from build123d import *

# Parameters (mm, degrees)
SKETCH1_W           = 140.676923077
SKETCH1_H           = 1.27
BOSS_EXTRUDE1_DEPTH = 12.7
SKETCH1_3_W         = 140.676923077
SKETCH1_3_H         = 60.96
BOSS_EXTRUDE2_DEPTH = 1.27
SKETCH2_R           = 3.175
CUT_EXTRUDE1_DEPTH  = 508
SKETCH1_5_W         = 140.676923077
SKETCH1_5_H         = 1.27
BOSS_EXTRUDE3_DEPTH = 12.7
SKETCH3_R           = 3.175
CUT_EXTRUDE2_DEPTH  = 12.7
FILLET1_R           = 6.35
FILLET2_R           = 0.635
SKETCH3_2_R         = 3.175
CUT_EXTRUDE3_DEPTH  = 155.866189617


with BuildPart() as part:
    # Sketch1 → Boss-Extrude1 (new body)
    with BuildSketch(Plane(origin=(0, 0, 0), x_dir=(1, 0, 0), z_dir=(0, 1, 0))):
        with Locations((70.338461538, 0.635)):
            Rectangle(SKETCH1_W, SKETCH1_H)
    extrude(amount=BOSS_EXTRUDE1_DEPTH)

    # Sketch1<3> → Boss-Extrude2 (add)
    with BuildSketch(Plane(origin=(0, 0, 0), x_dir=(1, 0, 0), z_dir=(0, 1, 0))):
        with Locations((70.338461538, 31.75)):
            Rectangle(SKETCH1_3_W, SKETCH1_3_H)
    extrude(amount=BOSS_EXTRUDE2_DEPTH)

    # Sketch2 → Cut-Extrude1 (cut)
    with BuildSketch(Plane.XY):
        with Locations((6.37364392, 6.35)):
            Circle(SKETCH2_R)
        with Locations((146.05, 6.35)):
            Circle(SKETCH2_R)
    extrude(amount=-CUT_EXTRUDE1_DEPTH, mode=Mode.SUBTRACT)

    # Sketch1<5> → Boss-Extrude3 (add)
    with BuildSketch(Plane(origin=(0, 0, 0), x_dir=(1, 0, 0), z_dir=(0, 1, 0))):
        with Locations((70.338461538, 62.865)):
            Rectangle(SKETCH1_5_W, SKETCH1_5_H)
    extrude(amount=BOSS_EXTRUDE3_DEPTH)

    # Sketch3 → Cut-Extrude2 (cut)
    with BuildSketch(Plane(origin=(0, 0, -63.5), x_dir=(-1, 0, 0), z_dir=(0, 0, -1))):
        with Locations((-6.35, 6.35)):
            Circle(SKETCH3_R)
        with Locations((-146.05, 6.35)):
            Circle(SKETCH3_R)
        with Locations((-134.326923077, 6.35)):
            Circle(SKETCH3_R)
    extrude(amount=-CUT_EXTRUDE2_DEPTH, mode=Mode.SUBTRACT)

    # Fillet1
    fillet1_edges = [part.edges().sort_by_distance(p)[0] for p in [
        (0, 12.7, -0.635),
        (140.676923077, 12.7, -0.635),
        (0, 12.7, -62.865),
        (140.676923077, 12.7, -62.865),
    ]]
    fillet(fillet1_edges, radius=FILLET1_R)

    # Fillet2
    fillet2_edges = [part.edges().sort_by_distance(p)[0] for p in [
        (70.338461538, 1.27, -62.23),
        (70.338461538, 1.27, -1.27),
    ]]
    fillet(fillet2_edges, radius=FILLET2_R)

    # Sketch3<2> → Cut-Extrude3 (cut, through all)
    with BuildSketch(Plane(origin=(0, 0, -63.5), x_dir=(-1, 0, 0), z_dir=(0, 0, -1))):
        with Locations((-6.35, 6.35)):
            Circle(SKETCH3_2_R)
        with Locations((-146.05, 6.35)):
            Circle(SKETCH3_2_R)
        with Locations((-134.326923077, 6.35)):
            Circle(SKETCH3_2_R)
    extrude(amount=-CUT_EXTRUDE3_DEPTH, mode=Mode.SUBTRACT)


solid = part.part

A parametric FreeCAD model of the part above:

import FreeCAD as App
import Part
import Sketcher

V = App.Vector
Q = App.Units.Quantity


def edges_at(feature, points):
    """Names of the edges that pass closest to the given points."""
    edges = feature.Shape.Edges
    near = lambda p: min(range(len(edges)), key=lambda i: edges[i].distToShape(Part.Vertex(*p))[0])
    return sorted({f"Edge{near(p) + 1}" for p in points})


def add_polygon(sketch, points):
    """Adds a closed chain of lines whose ends are joined by coincident constraints."""
    first, n = sketch.GeometryCount, len(points)
    for a, b in zip(points, points[1:] + points[:1]):
        sketch.addGeometry(Part.LineSegment(App.Vector(*a, 0), App.Vector(*b, 0)), False)
    for i in range(n):
        sketch.addConstraint(Sketcher.Constraint("Coincident", first + i, 2, first + (i + 1) % n, 1))

doc = App.newDocument("Part")
body = doc.addObject("PartDesign::Body", "Body")

# Sketch on XZ plane
sketch1 = doc.addObject("Sketcher::SketchObject", "Sketch")
body.addObject(sketch1)
sketch1.AttachmentSupport = (doc.XZ_Plane, [""])
sketch1.MapMode = "FlatFace"
add_polygon(sketch1, [(0, -1.27), (0, 0), (140.676923, 0), (140.676923, -1.27)])  # lines 0-3
sketch1.addConstraint(Sketcher.Constraint("Vertical", 0))
sketch1.addConstraint(Sketcher.Constraint("Horizontal", 1))
sketch1.addConstraint(Sketcher.Constraint("Vertical", 2))
sketch1.addConstraint(Sketcher.Constraint("Horizontal", 3))
sketch1.addConstraint(Sketcher.Constraint("Coincident", 0, 2, -1, 1))
sketch1.addConstraint(Sketcher.Constraint("DistanceY", 0, 1, 0, 2, Q("0.05 in")))
sketch1.addConstraint(Sketcher.Constraint("DistanceX", 1, 1, 1, 2, 140.676923))
pad1 = doc.addObject("PartDesign::Pad", "Pad")
body.addObject(pad1)
pad1.Profile = sketch1
pad1.Length = Q("0.5 in")
pad1.Reversed = True

# Sketch on XZ plane
sketch2 = doc.addObject("Sketcher::SketchObject", "Sketch001")
body.addObject(sketch2)
sketch2.AttachmentSupport = (doc.XZ_Plane, [""])
sketch2.MapMode = "FlatFace"
add_polygon(sketch2, [(0, -62.23), (0, -1.27), (140.676923, -1.27), (140.676923, -62.23)])  # lines 0-3
sketch2.addConstraint(Sketcher.Constraint("Vertical", 0))
sketch2.addConstraint(Sketcher.Constraint("Horizontal", 1))
sketch2.addConstraint(Sketcher.Constraint("Vertical", 2))
sketch2.addConstraint(Sketcher.Constraint("Horizontal", 3))
sketch2.addConstraint(Sketcher.Constraint("PointOnObject", 0, 2, -2))
sketch2.addConstraint(Sketcher.Constraint("DistanceY", 0, 1, 0, 2, Q("2.4 in")))
sketch2.addConstraint(Sketcher.Constraint("DistanceY", 0, 2, -1, 1, Q("0.05 in")))
sketch2.addConstraint(Sketcher.Constraint("DistanceX", 1, 1, 1, 2, 140.676923))
pad2 = doc.addObject("PartDesign::Pad", "Pad001")
body.addObject(pad2)
pad2.Profile = sketch2
pad2.Length = Q("0.05 in")
pad2.Reversed = True

# Sketch on XY plane
sketch3 = doc.addObject("Sketcher::SketchObject", "Sketch002")
body.addObject(sketch3)
sketch3.AttachmentSupport = (doc.XY_Plane, [""])
sketch3.MapMode = "FlatFace"
sketch3.addGeometry(Part.Circle(V(6.373644, 6.35, 0), V(0, 0, 1), 3.175), False)
sketch3.addGeometry(Part.Circle(V(146.05, 6.35, 0), V(0, 0, 1), 3.175), False)
sketch3.addConstraint(Sketcher.Constraint("Equal", 0, 1))
sketch3.addConstraint(Sketcher.Constraint("Horizontal", 0, 3, 1, 3))
sketch3.addConstraint(Sketcher.Constraint("Diameter", 0, Q("0.25 in")))
sketch3.addConstraint(Sketcher.Constraint("DistanceY", -1, 1, 0, 3, Q("0.25 in")))
sketch3.addConstraint(Sketcher.Constraint("DistanceX", -1, 1, 1, 3, Q("5.75 in")))
sketch3.addConstraint(Sketcher.Constraint("DistanceX", -1, 1, 0, 3, 6.373644))
pocket1 = doc.addObject("PartDesign::Pocket", "Pocket")
body.addObject(pocket1)
pocket1.Profile = sketch3
pocket1.Length = Q("20 in")

# Sketch on XZ plane
sketch4 = doc.addObject("Sketcher::SketchObject", "Sketch003")
body.addObject(sketch4)
sketch4.AttachmentSupport = (doc.XZ_Plane, [""])
sketch4.MapMode = "FlatFace"
add_polygon(sketch4, [(0, -63.5), (0, -62.23), (140.676923, -62.23), (140.676923, -63.5)])  # lines 0-3
sketch4.addConstraint(Sketcher.Constraint("Vertical", 0))
sketch4.addConstraint(Sketcher.Constraint("Horizontal", 1))
sketch4.addConstraint(Sketcher.Constraint("Vertical", 2))
sketch4.addConstraint(Sketcher.Constraint("Horizontal", 3))
sketch4.addConstraint(Sketcher.Constraint("PointOnObject", 0, 2, -2))
sketch4.addConstraint(Sketcher.Constraint("DistanceY", 0, 1, 0, 2, Q("0.05 in")))
sketch4.addConstraint(Sketcher.Constraint("DistanceY", 2, 2, -1, 1, Q("2.5 in")))
sketch4.addConstraint(Sketcher.Constraint("DistanceX", 1, 1, 1, 2, 140.676923))
pad3 = doc.addObject("PartDesign::Pad", "Pad002")
body.addObject(pad3)
pad3.Profile = sketch4
pad3.Length = Q("0.5 in")
pad3.Reversed = True

# Sketch on XY plane
sketch5 = doc.addObject("Sketcher::SketchObject", "Sketch004")
body.addObject(sketch5)
sketch5.AttachmentSupport = (doc.XY_Plane, [""])
sketch5.MapMode = "FlatFace"
sketch5.AttachmentOffset = App.Placement(V(0, 0, -2.5 * 25.4), App.Rotation())
sketch5.addGeometry(Part.Circle(V(6.35, 6.35, 0), V(0, 0, 1), 3.175), False)
sketch5.addGeometry(Part.Circle(V(146.05, 6.35, 0), V(0, 0, 1), 3.175), False)
sketch5.addGeometry(Part.Circle(V(134.326923, 6.35, 0), V(0, 0, 1), 3.175), False)
sketch5.addConstraint(Sketcher.Constraint("Equal", 0, 1))
sketch5.addConstraint(Sketcher.Constraint("Equal", 1, 2))
sketch5.addConstraint(Sketcher.Constraint("Horizontal", 0, 3, 1, 3))
sketch5.addConstraint(Sketcher.Constraint("Horizontal", 1, 3, 2, 3))
sketch5.addConstraint(Sketcher.Constraint("Diameter", 0, Q("0.25 in")))
sketch5.addConstraint(Sketcher.Constraint("DistanceX", 0, 3, 1, 3, Q("5.5 in")))
sketch5.addConstraint(Sketcher.Constraint("DistanceX", -1, 1, 0, 3, Q("0.25 in")))
sketch5.addConstraint(Sketcher.Constraint("DistanceY", -1, 1, 0, 3, Q("0.25 in")))
sketch5.addConstraint(Sketcher.Constraint("DistanceX", -1, 1, 2, 3, 134.326923))
pocket2 = doc.addObject("PartDesign::Pocket", "Pocket001")
body.addObject(pocket2)
pocket2.Profile = sketch5
pocket2.Length = Q("0.5 in")
pocket2.Reversed = True
doc.recompute()

fillet = doc.addObject("PartDesign::Fillet", "Fillet")
body.addObject(fillet)
fillet.Base = (pocket2, edges_at(pocket2, [
    (0, 12.7, -0.635),
    (140.677, 12.7, -0.635),
    (0, 12.7, -62.865),
    (140.677, 12.7, -62.865),
]))
fillet.Radius = Q("0.25 in")
doc.recompute()

fillet2 = doc.addObject("PartDesign::Fillet", "Fillet001")
body.addObject(fillet2)
fillet2.Base = (fillet, edges_at(fillet, [(70.338, 1.27, -62.23), (70.338, 1.27, -1.27)]))
fillet2.Radius = Q("0.025 in")

# Sketch on XY plane
sketch6 = doc.addObject("Sketcher::SketchObject", "Sketch005")
body.addObject(sketch6)
sketch6.AttachmentSupport = (doc.XY_Plane, [""])
sketch6.MapMode = "FlatFace"
sketch6.AttachmentOffset = App.Placement(V(0, 0, -2.5 * 25.4), App.Rotation())
sketch6.addGeometry(Part.Circle(V(6.35, 6.35, 0), V(0, 0, 1), 3.175), False)
sketch6.addGeometry(Part.Circle(V(146.05, 6.35, 0), V(0, 0, 1), 3.175), False)
sketch6.addGeometry(Part.Circle(V(134.326923, 6.35, 0), V(0, 0, 1), 3.175), False)
sketch6.addConstraint(Sketcher.Constraint("Equal", 0, 1))
sketch6.addConstraint(Sketcher.Constraint("Equal", 1, 2))
sketch6.addConstraint(Sketcher.Constraint("Horizontal", 0, 3, 1, 3))
sketch6.addConstraint(Sketcher.Constraint("Horizontal", 1, 3, 2, 3))
sketch6.addConstraint(Sketcher.Constraint("Diameter", 0, Q("0.25 in")))
sketch6.addConstraint(Sketcher.Constraint("DistanceX", 0, 3, 1, 3, Q("5.5 in")))
sketch6.addConstraint(Sketcher.Constraint("DistanceX", -1, 1, 0, 3, Q("0.25 in")))
sketch6.addConstraint(Sketcher.Constraint("DistanceY", -1, 1, 0, 3, Q("0.25 in")))
sketch6.addConstraint(Sketcher.Constraint("DistanceX", -1, 1, 2, 3, 134.326923))
pocket3 = doc.addObject("PartDesign::Pocket", "Pocket002")
body.addObject(pocket3)
pocket3.Profile = sketch6
pocket3.Type = "ThroughAll"
pocket3.Reversed = True

doc.recompute()
